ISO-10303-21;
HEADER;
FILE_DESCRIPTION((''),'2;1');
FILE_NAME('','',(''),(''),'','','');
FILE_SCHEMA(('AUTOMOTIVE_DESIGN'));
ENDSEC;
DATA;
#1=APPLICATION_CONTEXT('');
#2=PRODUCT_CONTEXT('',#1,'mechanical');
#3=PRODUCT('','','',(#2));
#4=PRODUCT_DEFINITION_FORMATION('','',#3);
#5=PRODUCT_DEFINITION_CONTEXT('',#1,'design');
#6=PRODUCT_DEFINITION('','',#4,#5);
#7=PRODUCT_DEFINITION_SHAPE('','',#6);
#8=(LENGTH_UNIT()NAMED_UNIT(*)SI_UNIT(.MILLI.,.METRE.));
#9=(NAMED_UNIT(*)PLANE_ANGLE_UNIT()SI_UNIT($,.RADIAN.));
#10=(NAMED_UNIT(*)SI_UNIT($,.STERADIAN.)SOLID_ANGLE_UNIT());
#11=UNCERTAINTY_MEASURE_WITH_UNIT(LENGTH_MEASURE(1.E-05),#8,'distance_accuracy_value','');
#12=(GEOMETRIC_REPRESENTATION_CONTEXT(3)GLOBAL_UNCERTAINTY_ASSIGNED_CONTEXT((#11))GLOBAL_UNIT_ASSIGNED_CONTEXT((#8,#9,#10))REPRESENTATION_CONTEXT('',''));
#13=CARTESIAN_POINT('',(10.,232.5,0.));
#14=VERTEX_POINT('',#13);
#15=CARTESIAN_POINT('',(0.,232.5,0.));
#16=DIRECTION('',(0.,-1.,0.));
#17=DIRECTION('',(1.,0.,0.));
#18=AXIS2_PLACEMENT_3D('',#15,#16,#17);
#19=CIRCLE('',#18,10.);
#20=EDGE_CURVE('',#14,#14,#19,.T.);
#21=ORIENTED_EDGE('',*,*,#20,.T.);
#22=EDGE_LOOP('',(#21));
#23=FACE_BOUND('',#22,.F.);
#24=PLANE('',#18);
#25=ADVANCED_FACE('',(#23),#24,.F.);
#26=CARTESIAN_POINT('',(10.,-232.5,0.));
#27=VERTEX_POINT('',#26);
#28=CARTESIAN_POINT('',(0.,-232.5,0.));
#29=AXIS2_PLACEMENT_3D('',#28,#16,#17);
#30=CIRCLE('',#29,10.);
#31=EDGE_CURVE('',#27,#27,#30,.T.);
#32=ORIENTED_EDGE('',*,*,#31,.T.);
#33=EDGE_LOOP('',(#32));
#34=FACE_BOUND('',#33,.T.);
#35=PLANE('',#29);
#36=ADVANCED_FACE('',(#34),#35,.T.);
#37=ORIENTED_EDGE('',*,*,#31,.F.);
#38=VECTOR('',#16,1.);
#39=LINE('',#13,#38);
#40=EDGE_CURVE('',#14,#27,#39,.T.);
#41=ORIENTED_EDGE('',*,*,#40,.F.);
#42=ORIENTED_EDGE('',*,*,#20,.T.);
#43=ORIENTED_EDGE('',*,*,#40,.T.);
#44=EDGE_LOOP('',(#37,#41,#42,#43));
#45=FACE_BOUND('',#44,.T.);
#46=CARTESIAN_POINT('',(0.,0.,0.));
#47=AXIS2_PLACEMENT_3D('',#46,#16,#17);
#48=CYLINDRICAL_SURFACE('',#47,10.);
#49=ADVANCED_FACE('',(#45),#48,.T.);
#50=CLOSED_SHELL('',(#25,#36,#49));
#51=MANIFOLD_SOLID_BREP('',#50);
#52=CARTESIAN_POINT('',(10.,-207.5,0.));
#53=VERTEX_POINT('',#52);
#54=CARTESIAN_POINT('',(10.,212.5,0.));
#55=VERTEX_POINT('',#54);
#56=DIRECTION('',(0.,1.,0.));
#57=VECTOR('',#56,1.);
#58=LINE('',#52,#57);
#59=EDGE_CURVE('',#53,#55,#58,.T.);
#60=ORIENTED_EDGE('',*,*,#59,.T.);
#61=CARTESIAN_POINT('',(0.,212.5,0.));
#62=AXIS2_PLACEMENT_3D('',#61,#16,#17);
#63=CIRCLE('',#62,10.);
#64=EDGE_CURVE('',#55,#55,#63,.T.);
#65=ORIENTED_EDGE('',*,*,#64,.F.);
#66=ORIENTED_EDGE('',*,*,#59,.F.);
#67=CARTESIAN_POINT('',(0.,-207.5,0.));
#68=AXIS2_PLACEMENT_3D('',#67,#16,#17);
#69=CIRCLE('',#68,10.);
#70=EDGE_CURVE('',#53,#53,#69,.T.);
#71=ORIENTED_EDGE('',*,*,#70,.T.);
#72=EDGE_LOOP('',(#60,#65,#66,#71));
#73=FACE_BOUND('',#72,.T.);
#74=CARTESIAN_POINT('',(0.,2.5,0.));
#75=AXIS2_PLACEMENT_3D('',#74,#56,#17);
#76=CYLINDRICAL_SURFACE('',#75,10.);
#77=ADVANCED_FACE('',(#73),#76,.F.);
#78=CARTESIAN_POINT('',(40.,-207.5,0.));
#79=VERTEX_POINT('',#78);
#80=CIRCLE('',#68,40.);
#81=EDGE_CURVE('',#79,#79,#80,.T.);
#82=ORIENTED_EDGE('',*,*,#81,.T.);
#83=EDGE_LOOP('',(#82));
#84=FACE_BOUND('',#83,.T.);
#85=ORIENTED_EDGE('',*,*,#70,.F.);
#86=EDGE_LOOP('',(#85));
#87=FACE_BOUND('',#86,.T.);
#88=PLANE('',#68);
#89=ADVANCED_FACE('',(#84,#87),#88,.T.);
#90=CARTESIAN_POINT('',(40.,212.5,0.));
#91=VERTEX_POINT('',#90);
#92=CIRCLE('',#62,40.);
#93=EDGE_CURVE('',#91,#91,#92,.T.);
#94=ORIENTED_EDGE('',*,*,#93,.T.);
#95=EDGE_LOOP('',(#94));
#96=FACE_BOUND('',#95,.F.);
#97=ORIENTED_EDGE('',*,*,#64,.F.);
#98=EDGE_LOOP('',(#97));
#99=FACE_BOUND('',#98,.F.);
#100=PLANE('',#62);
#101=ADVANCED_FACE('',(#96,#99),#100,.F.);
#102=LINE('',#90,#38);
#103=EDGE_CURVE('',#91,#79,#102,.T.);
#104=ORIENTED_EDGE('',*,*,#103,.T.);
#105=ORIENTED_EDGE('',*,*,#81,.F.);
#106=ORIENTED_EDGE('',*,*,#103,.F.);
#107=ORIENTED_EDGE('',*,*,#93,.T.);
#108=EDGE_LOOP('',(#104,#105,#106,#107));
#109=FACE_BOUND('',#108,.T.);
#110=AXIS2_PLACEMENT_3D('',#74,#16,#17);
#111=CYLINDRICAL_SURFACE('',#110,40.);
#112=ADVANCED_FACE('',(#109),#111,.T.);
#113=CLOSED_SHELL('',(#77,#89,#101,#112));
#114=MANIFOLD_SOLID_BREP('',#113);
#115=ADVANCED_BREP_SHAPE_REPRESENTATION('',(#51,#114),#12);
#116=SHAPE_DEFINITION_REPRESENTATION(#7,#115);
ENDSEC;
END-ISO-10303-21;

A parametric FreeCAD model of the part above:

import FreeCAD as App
import Part
import Sketcher
from FreeCAD import Vector
Q = App.Units.Quantity

doc = App.newDocument("Part")
params = doc.addObject("Spreadsheet::Sheet", "Params")
for row, (alias, value) in enumerate([
    ("sketch1_diameter", "20 mm"),
    ("pad1_length", "465 mm"),
    ("sketch2_diameter", "80 mm"),
    ("sketch2_diameter2", "20 mm"),
    ("pad2_length", "420 mm"),
], start=1):
    params.set(f"A{row}", alias)
    params.set(f"B{row}", "=" + value)
    params.setAlias(f"B{row}", alias)

body = doc.addObject("PartDesign::Body", "Body")

sketch1 = body.newObject("Sketcher::SketchObject", "Sketch")
sketch1.AttachmentSupport = (doc.getObject("XZ_Plane"), [""])
sketch1.MapMode = "FlatFace"
sketch1.addGeometry(Part.Circle(Vector(0, 0, 0), Vector(0, 0, 1), 10), False)
sketch1.addConstraint([
    Sketcher.Constraint("Coincident", 0, 3, -1, 1),
    Sketcher.Constraint("Diameter", 0, Q("20 mm")),
])
sketch1.setExpression("Constraints[1]", "Params.sketch1_diameter")
pad1 = body.newObject("PartDesign::Pad", "Pad")
pad1.Profile = sketch1
pad1.setExpression("Length", "Params.pad1_length")
pad1.Midplane = True
body2 = doc.addObject("PartDesign::Body", "Body001")

sketch2 = body2.newObject("Sketcher::SketchObject", "Sketch001")
sketch2.AttachmentSupport = (doc.getObject("XZ_Plane001"), [""])
sketch2.MapMode = "FlatFace"
sketch2.AttachmentOffset = App.Placement(Vector(0, 0, -2.5), App.Rotation())
sketch2.addGeometry([
    Part.Circle(Vector(0, 0, 0), Vector(0, 0, 1), 40),
    Part.Circle(Vector(0, 0, 0), Vector(0, 0, 1), 10),
], False)
sketch2.addConstraint([
    Sketcher.Constraint("Coincident", 0, 3, -1, 1),
    Sketcher.Constraint("Coincident", 1, 3, -1, 1),
    Sketcher.Constraint("Diameter", 0, Q("80 mm")),
    Sketcher.Constraint("Diameter", 1, Q("20 mm")),
])
sketch2.setExpression("Constraints[2]", "Params.sketch2_diameter")
sketch2.setExpression("Constraints[3]", "Params.sketch2_diameter2")
pad2 = body2.newObject("PartDesign::Pad", "Pad001")
pad2.Profile = sketch2
pad2.setExpression("Length", "Params.pad2_length")
pad2.Midplane = True

doc.recompute()
